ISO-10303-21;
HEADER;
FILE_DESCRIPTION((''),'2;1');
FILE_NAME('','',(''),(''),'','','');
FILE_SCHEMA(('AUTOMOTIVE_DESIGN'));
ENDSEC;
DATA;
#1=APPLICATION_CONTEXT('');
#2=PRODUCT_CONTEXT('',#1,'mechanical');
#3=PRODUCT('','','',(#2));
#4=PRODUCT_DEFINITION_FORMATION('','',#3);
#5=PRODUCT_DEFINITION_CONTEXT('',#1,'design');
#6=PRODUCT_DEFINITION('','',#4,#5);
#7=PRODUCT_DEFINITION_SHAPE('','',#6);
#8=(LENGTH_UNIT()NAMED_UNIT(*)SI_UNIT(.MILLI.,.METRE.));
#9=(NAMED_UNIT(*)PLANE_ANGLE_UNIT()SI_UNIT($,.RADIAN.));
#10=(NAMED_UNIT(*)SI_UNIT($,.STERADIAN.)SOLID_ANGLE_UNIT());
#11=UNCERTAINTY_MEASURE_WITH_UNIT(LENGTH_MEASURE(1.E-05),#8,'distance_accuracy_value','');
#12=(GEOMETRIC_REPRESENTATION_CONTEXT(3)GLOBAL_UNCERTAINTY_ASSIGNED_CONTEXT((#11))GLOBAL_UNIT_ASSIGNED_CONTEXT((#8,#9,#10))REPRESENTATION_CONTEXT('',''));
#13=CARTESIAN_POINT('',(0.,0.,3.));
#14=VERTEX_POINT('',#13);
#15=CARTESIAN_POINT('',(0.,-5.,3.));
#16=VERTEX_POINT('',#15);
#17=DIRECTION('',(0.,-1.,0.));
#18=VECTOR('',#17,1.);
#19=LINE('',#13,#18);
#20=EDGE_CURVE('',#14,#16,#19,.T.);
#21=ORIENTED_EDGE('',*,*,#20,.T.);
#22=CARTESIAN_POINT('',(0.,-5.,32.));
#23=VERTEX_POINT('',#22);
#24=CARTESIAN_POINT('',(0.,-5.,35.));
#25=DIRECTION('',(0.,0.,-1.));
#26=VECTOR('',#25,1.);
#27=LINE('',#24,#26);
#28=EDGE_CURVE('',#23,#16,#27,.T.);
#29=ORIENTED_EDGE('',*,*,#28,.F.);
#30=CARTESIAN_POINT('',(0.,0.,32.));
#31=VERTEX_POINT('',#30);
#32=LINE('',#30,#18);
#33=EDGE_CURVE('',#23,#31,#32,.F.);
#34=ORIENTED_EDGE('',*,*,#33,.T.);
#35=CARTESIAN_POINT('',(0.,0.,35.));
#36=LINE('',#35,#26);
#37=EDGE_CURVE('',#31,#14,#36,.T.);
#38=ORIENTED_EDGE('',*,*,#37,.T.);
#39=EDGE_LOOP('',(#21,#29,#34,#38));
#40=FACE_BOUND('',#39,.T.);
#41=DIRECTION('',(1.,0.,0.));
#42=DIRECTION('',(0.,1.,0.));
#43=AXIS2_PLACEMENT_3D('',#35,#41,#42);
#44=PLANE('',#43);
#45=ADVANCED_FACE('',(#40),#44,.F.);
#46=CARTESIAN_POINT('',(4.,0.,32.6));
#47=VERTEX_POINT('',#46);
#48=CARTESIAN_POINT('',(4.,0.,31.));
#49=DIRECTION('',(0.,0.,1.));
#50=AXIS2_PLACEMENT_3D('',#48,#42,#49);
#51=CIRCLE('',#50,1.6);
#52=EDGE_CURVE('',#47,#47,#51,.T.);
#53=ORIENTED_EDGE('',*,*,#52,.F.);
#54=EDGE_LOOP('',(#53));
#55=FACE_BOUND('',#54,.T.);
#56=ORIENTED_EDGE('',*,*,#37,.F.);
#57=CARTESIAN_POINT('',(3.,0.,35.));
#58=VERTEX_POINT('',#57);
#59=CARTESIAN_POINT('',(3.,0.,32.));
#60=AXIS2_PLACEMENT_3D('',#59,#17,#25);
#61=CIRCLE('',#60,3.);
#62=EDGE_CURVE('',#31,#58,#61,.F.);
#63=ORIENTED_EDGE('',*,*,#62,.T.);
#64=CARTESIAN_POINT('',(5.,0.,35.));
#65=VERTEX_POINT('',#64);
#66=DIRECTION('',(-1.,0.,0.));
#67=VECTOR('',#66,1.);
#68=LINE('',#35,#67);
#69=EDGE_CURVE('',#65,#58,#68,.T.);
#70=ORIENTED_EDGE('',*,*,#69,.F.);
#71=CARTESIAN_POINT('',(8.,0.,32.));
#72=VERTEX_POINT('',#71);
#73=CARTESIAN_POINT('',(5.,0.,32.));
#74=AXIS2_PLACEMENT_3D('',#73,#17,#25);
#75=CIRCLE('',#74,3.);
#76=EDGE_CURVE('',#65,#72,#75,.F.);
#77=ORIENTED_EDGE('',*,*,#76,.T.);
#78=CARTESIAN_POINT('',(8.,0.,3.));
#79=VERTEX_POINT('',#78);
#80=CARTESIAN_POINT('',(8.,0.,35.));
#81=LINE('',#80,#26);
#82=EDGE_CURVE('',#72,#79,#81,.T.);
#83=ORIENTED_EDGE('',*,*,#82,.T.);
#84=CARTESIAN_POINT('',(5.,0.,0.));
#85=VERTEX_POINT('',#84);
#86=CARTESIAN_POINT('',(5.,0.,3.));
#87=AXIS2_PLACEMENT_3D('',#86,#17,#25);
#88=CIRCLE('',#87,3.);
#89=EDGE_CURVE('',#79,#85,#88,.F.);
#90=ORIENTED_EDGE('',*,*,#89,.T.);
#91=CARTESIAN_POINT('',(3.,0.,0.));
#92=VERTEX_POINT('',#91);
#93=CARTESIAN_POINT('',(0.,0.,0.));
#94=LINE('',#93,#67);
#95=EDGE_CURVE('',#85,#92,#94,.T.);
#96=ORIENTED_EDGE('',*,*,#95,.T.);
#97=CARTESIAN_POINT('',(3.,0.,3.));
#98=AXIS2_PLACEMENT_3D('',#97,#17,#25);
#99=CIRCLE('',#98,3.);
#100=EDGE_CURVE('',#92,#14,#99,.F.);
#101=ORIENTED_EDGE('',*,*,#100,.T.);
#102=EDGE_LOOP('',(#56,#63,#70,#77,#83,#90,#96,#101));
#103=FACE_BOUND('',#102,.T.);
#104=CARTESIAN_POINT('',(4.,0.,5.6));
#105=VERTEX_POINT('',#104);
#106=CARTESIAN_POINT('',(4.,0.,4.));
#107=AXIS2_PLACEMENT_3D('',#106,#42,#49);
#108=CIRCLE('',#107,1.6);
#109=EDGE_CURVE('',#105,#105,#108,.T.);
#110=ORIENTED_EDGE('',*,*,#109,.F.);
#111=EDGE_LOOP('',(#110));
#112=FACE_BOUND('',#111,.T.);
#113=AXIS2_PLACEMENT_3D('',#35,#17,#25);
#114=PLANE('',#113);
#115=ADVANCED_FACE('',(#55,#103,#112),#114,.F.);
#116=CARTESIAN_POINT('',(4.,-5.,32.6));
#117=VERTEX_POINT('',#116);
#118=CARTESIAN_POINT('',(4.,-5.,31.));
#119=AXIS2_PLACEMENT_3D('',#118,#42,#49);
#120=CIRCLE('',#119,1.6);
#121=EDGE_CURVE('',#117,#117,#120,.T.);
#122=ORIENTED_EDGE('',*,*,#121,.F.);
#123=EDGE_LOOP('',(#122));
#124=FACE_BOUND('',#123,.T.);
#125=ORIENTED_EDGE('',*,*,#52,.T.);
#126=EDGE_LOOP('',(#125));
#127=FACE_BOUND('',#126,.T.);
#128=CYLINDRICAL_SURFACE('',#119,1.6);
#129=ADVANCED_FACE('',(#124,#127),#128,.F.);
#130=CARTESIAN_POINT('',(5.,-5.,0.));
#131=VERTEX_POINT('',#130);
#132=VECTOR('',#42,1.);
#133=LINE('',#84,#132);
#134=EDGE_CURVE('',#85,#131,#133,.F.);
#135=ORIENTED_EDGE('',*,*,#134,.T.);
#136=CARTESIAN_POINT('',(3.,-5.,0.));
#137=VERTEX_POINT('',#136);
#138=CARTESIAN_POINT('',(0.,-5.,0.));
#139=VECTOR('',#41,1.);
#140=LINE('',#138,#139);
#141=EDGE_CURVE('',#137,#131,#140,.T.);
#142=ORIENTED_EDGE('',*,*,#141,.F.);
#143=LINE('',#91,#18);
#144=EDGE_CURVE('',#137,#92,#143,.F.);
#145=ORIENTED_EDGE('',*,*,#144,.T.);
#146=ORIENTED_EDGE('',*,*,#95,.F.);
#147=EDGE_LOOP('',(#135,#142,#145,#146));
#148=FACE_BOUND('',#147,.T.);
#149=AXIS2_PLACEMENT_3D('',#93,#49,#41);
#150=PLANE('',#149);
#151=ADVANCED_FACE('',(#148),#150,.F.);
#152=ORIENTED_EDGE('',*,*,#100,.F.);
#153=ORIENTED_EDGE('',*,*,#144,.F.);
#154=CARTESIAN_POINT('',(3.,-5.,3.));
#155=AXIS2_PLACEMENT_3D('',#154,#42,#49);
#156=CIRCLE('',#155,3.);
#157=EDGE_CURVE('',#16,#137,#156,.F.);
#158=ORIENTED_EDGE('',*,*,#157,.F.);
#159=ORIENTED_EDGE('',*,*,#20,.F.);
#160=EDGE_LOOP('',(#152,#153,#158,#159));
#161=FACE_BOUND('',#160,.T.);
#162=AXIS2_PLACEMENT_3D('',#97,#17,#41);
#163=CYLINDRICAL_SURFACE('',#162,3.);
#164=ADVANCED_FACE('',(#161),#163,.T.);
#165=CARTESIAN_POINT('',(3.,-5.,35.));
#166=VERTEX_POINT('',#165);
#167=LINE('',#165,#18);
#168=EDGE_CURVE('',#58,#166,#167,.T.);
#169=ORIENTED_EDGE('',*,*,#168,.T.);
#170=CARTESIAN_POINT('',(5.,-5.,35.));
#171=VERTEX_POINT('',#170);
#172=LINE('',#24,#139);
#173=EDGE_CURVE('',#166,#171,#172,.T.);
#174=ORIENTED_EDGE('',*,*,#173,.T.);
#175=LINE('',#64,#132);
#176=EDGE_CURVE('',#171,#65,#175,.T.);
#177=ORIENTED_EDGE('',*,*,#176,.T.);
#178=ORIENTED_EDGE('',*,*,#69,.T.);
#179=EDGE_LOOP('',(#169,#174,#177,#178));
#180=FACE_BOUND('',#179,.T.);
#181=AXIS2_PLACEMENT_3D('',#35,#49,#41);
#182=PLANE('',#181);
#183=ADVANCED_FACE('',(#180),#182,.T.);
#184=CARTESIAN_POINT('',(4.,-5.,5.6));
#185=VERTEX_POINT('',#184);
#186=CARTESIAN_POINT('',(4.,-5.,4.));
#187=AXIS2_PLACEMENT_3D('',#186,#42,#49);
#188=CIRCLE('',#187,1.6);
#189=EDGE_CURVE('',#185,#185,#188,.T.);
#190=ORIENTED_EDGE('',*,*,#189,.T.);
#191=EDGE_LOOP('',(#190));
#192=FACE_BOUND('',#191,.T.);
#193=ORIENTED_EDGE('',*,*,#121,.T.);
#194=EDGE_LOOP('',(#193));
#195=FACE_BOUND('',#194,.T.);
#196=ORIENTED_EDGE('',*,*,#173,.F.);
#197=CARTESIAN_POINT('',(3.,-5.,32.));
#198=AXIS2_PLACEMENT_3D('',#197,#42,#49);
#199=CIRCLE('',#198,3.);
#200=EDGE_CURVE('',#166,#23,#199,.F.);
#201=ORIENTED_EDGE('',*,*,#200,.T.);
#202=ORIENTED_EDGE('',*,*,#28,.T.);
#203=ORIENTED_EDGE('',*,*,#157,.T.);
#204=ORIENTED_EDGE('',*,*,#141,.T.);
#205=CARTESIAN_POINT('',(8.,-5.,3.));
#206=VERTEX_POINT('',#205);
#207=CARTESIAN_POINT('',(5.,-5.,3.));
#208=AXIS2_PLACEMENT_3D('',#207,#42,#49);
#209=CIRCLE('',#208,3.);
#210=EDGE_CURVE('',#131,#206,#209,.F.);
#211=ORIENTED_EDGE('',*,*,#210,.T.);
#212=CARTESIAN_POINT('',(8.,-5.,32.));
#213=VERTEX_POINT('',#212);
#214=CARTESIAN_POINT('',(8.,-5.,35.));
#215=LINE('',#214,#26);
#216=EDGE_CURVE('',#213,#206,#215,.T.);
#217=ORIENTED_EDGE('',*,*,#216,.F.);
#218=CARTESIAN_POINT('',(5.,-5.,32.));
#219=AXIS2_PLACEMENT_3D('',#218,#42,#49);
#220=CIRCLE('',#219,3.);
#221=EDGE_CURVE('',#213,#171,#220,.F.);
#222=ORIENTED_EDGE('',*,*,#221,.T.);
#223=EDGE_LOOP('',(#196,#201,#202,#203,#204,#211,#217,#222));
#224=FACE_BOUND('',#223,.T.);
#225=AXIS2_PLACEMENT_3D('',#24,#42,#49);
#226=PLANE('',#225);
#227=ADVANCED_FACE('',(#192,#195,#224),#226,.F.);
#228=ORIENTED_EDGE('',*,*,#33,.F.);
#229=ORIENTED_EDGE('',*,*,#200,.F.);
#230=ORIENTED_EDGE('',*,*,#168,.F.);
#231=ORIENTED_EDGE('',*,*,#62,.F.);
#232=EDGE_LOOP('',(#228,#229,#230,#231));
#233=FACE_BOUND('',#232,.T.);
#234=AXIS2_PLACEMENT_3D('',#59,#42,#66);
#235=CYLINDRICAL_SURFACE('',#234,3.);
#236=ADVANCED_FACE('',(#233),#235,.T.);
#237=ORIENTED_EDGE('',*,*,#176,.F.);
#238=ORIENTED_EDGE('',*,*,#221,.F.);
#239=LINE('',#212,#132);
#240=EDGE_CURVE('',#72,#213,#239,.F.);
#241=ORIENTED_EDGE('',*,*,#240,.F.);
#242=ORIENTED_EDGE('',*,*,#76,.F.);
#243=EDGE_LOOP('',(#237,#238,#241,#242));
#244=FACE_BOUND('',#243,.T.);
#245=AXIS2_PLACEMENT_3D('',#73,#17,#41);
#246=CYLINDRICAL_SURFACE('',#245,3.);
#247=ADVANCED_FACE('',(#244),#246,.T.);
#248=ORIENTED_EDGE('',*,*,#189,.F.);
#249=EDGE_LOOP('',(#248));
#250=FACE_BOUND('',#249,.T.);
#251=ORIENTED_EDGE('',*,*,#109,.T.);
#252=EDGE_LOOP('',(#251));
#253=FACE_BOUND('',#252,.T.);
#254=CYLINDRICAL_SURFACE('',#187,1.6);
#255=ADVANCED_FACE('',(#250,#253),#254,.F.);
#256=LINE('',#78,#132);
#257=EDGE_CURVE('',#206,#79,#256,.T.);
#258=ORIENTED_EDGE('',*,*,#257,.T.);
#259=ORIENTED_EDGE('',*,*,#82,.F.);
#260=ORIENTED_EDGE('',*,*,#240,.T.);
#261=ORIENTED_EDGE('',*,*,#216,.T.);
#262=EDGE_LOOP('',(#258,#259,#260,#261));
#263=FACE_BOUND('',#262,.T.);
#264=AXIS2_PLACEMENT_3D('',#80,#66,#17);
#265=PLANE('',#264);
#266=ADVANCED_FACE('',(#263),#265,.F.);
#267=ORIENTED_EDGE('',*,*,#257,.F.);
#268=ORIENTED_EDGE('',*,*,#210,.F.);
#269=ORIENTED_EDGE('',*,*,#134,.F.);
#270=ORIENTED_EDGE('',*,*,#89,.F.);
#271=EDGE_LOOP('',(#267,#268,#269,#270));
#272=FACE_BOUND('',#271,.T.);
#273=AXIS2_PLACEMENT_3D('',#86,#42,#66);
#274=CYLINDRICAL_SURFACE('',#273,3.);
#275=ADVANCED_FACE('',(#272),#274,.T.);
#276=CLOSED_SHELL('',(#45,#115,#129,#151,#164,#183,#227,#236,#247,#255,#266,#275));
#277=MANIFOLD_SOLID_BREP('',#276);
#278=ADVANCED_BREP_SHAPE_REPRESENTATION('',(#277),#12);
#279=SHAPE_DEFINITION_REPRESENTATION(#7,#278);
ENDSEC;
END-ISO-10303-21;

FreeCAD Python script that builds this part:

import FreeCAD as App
import Part
import Sketcher
from FreeCAD import Vector
Q = App.Units.Quantity


def edges_at(feature, points):
    """Names of the edges that pass closest to the given points."""
    edges = feature.Shape.Edges
    near = lambda p: min(range(len(edges)), key=lambda i: edges[i].distToShape(Part.Vertex(*p))[0])
    return sorted({f"Edge{near(p) + 1}" for p in points})


def add_polygon(sketch, points):
    """Adds a closed chain of lines whose ends are joined by coincident constraints."""
    first, n = sketch.GeometryCount, len(points)
    for a, b in zip(points, points[1:] + points[:1]):
        sketch.addGeometry(Part.LineSegment(App.Vector(*a, 0), App.Vector(*b, 0)), False)
    for i in range(n):
        sketch.addConstraint(Sketcher.Constraint("Coincident", first + i, 2, first + (i + 1) % n, 1))

doc = App.newDocument("Part")
body = doc.addObject("PartDesign::Body", "Body")

sketch1 = doc.addObject("Sketcher::SketchObject", "Sketch")
body.addObject(sketch1)
sketch1.AttachmentSupport = (doc.XY_Plane, [""])
sketch1.MapMode = "FlatFace"
add_polygon(sketch1, [(0, 0), (0, -5), (8, -5), (8, 0)])
sketch1.addConstraint([
    Sketcher.Constraint("Vertical", 0),
    Sketcher.Constraint("Horizontal", 1),
    Sketcher.Constraint("Vertical", 2),
    Sketcher.Constraint("Horizontal", 3),
    Sketcher.Constraint("Coincident", 3, 2, -1, 1),
    Sketcher.Constraint("DistanceX", 1, 1, 1, 2, Q("8 mm")),
    Sketcher.Constraint("DistanceY", 0, 2, 0, 1, Q("5 mm")),
])
pad1 = doc.addObject("PartDesign::Pad", "Pad")
body.addObject(pad1)
pad1.Profile = sketch1
pad1.Length = 35

sketch2 = doc.addObject("Sketcher::SketchObject", "Sketch001")
body.addObject(sketch2)
sketch2.AttachmentSupport = (doc.XZ_Plane, [""])
sketch2.MapMode = "FlatFace"
sketch2.addGeometry([
    Part.Circle(Vector(4, 4, 0), Vector(0, 0, 1), 1.6),
    Part.Circle(Vector(4, 31, 0), Vector(0, 0, 1), 1.6),
], False)
sketch2.addConstraint([
    Sketcher.Constraint("Equal", 0, 1),
    Sketcher.Constraint("Vertical", 0, 3, 1, 3),
    Sketcher.Constraint("Diameter", 0, Q("3.2 mm")),
    Sketcher.Constraint("DistanceX", -1, 1, 0, 3, Q("4 mm")),
    Sketcher.Constraint("DistanceY", -1, 1, 0, 3, Q("4 mm")),
    Sketcher.Constraint("DistanceY", -1, 1, 1, 3, Q("31 mm")),
])
pocket1 = doc.addObject("PartDesign::Pocket", "Pocket")
body.addObject(pocket1)
pocket1.Profile = sketch2
pocket1.Type = "ThroughAll"
pocket1.Reversed = True
doc.recompute()

fillet = doc.addObject("PartDesign::Fillet", "Fillet")
body.addObject(fillet)
fillet.Base = (pocket1, edges_at(pocket1, [
    (8, -2.5, 35),
    (0, -2.5, 35),
    (8, -2.5, 0),
    (0, -2.5, 0),
]))
fillet.Radius = 3

doc.recompute()
